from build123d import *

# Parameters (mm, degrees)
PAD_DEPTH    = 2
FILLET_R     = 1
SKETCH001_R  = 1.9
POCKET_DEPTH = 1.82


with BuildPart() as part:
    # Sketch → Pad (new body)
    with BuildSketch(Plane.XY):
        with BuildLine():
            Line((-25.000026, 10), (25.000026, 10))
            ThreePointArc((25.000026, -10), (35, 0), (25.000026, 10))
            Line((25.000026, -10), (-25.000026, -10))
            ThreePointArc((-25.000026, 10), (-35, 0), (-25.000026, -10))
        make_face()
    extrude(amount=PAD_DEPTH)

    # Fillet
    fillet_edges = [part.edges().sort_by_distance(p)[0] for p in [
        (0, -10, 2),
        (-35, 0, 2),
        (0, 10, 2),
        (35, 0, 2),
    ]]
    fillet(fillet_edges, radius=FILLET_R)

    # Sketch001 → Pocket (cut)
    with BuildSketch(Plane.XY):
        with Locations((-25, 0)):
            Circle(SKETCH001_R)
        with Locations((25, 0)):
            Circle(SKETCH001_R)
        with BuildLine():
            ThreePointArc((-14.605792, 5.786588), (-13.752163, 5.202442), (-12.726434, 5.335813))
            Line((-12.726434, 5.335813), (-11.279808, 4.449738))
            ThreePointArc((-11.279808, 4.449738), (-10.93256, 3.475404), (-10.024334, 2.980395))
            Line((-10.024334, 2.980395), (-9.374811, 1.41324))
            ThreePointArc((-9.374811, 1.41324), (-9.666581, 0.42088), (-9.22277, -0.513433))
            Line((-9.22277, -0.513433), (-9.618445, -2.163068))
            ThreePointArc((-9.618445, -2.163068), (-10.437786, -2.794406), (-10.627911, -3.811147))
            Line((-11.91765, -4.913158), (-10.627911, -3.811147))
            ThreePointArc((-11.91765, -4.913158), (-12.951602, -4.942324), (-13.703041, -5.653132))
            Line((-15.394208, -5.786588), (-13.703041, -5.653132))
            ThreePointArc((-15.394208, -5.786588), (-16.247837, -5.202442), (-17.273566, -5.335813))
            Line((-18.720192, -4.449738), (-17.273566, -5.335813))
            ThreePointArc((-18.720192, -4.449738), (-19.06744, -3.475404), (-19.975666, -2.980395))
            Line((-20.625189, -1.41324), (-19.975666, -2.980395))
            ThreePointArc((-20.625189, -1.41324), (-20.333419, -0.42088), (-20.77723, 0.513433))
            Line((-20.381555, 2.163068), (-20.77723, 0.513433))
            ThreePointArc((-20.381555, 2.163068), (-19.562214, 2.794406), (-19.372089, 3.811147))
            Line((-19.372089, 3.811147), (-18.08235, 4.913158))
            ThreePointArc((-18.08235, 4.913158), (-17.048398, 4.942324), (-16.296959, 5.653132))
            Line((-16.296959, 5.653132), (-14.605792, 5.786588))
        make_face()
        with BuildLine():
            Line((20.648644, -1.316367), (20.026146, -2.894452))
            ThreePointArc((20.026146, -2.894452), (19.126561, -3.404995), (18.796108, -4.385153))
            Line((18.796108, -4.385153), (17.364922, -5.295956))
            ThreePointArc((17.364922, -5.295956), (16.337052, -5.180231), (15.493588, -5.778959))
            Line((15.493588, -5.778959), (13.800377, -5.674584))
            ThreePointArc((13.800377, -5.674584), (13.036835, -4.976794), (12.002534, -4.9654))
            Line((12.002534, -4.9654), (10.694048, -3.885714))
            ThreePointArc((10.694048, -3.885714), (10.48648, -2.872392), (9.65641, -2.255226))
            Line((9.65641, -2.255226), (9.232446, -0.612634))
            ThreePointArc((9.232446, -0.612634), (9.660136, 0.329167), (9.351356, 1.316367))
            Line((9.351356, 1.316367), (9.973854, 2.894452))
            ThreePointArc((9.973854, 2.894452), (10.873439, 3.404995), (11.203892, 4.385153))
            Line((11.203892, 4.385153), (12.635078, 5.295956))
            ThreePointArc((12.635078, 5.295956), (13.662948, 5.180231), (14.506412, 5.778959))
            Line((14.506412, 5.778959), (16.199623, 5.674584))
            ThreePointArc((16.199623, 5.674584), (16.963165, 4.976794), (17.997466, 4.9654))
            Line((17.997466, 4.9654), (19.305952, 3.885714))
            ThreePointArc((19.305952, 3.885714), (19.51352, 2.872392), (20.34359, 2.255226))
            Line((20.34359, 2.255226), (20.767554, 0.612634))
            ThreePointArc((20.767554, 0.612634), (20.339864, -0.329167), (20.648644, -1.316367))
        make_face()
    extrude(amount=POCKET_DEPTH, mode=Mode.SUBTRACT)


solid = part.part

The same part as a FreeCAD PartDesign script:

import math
import FreeCAD as App
import Part
import Sketcher

V = App.Vector


def edges_at(feature, points):
    """Names of the edges that pass closest to the given points."""
    edges = feature.Shape.Edges
    near = lambda p: min(range(len(edges)), key=lambda i: edges[i].distToShape(Part.Vertex(*p))[0])
    return sorted({f"Edge{near(p) + 1}" for p in points})

doc = App.newDocument("Part")
body = doc.addObject("PartDesign::Body", "Body")

# Sketch on XY plane
sketch1 = body.newObject("Sketcher::SketchObject", "Sketch")
sketch1.AttachmentSupport = (doc.getObject("XY_Plane"), [""])
sketch1.MapMode = "FlatFace"
sketch1.addGeometry([
    Part.LineSegment(V(25.000026, 10, 0), V(-25.000026, 10, 0)),
    Part.ArcOfCircle(Part.Circle(V(-25, 0, 0), V(0, 0, 1), 10), math.radians(90.000149), math.radians(269.999851)),
    Part.LineSegment(V(-25.000026, -10, 0), V(25.000026, -10, 0)),
    Part.ArcOfCircle(Part.Circle(V(25, 0, 0), V(0, 0, 1), 10), math.radians(-89.999851), math.radians(89.999851)),
], False)
sketch1.addConstraint([
    Sketcher.Constraint("Coincident", 0, 2, 1, 1),
    Sketcher.Constraint("Coincident", 1, 2, 2, 1),
    Sketcher.Constraint("Coincident", 2, 2, 3, 1),
    Sketcher.Constraint("Coincident", 3, 2, 0, 1),
    Sketcher.Constraint("Horizontal", 0),
    Sketcher.Constraint("Horizontal", 2),
    Sketcher.Constraint("Symmetric", 1, 3, 3, 3, -1, 1),
    Sketcher.Constraint("Vertical", 0, 2, 1, 2),
    Sketcher.Constraint("Vertical", 2, 2, 3, 2),
    Sketcher.Constraint("Radius", 1, 10.0),
    Sketcher.Constraint("DistanceX", 1, 3, -1, 1, 25.0),
    Sketcher.Constraint("DistanceX", 0, 2, 0, 1, 50.000052),
    Sketcher.Constraint("DistanceX", 0, 2, -1, 1, 25.000026),
])
pad1 = body.newObject("PartDesign::Pad", "Pad")
pad1.Profile = sketch1
pad1.Length = 2
doc.recompute()

fillet = body.newObject("PartDesign::Fillet", "Fillet")
fillet.Base = (pad1, edges_at(pad1, [
    (0, -10, 2),
    (-35, 0, 2),
    (0, 10, 2),
    (35, 0, 2),
]))
fillet.Radius = 1

# Sketch on XY plane
sketch2 = body.newObject("Sketcher::SketchObject", "Sketch001")
sketch2.AttachmentSupport = (doc.getObject("XY_Plane"), [""])
sketch2.MapMode = "FlatFace"
sketch2.addGeometry([
    Part.Circle(V(-25, 0, 0), V(0, 0, 1), 1.9),  # 0
    Part.Circle(V(25, 0, 0), V(0, 0, 1), 1.9),  # 1
    Part.ArcOfCircle(Part.Circle(V(-13.413965, 6.61245, 0), V(0, 0, 1), 1.45), math.radians(-145.280464), math.radians(-61.695383)),  # 2
    Part.LineSegment(V(-14.605792, 5.786588, 0), V(-16.296959, 5.653132, 0)),  # 3
    Part.ArcOfCircle(Part.Circle(V(-17.603571, 6.281831, 0), V(0, 0, 1), 1.449999), math.radians(-109.280489), math.radians(-25.695363)),  # 4
    Part.LineSegment(V(-18.08235, 4.913158, 0), V(-19.372089, 3.811147, 0)),  # 5
    Part.ArcOfCircle(Part.Circle(V(-20.798703, 3.551769, 0), V(0, 0, 1), 1.450001), math.radians(-73.280419), math.radians(10.30459)),  # 6
    Part.LineSegment(V(-20.381555, 2.163068, 0), V(-20.77723, 0.513433, 0)),  # 7
    Part.ArcOfCircle(Part.Circle(V(-21.778925, -0.53495, 0), V(0, 0, 1), 1.45), math.radians(-37.280455), math.radians(46.304604)),  # 8
    Part.LineSegment(V(-20.625189, -1.41324, 0), V(-19.975666, -2.980395, 0)),  # 9
    Part.ArcOfCircle(Part.Circle(V(-20.16983, -4.417336, 0), V(0, 0, 1), 1.45), math.radians(-1.280439), math.radians(82.304629)),  # 10
    Part.LineSegment(V(-18.720192, -4.449738, 0), V(-17.273566, -5.335813, 0)),  # 11
    Part.ArcOfCircle(Part.Circle(V(-16.586035, -6.61245, 0), V(0, 0, 1), 1.45), math.radians(34.719536), math.radians(118.304617)),  # 12
    Part.LineSegment(V(-15.394208, -5.786588, 0), V(-13.703041, -5.653132, 0)),  # 13
    Part.ArcOfCircle(Part.Circle(V(-12.396429, -6.281831, 0), V(0, 0, 1), 1.449999), math.radians(70.719511), math.radians(154.304637)),  # 14
    Part.LineSegment(V(-11.91765, -4.913158, 0), V(-10.627911, -3.811147, 0)),  # 15
    Part.ArcOfCircle(Part.Circle(V(-9.201297, -3.551769, 0), V(0, 0, 1), 1.450001), math.radians(106.719581), math.radians(190.30459)),  # 16
    Part.LineSegment(V(-9.618445, -2.163068, 0), V(-9.22277, -0.513433, 0)),  # 17
    Part.ArcOfCircle(Part.Circle(V(-8.221075, 0.53495, 0), V(0, 0, 1), 1.45), math.radians(142.719545), math.radians(226.304604)),  # 18
    Part.LineSegment(V(-9.374811, 1.41324, 0), V(-10.024334, 2.980395, 0)),  # 19
    Part.ArcOfCircle(Part.Circle(V(-9.83017, 4.417336, 0), V(0, 0, 1), 1.45), math.radians(178.719561), math.radians(262.304629)),  # 20
    Part.LineSegment(V(-11.279808, 4.449738, 0), V(-12.726434, 5.335813, 0)),  # 21
    Part.LineSegment(V(20.026146, -2.894452, 0), V(20.648644, -1.316367, 0)),  # 22
    Part.ArcOfCircle(Part.Circle(V(21.787117, -0.418381, 0), V(0, 0, 1), 1.45), math.radians(134.680019), math.radians(218.265106)),  # 23
    Part.LineSegment(V(20.767554, 0.612634, 0), V(20.34359, 2.255226, 0)),  # 24
    Part.ArcOfCircle(Part.Circle(V(20.736811, 3.65089, 0), V(0, 0, 1), 1.45), math.radians(170.680042), math.radians(254.26508)),  # 25
    Part.LineSegment(V(19.305952, 3.885714, 0), V(17.997466, 4.9654, 0)),  # 26
    Part.ArcOfCircle(Part.Circle(V(17.495237, 6.325643, 0), V(0, 0, 1), 1.449998), math.radians(-153.320026), math.radians(-69.734854)),  # 27
    Part.LineSegment(V(16.199623, 5.674584, 0), V(14.506412, 5.778959, 0)),  # 28
    Part.ArcOfCircle(Part.Circle(V(13.300569, 6.584219, 0), V(0, 0, 1), 1.45), math.radians(-117.319999), math.radians(-33.734929)),  # 29
    Part.LineSegment(V(12.635078, 5.295956, 0), V(11.203892, 4.385153, 0)),  # 30
    Part.ArcOfCircle(Part.Circle(V(9.755026, 4.327844, 0), V(0, 0, 1), 1.449999), math.radians(-81.31999), math.radians(2.265137)),  # 31
    Part.LineSegment(V(9.973854, 2.894452, 0), V(9.351356, 1.316367, 0)),  # 32
    Part.ArcOfCircle(Part.Circle(V(8.212883, 0.418381, 0), V(0, 0, 1), 1.45), math.radians(-45.319981), math.radians(38.265106)),  # 33
    Part.LineSegment(V(9.232446, -0.612634, 0), V(9.65641, -2.255226, 0)),  # 34
    Part.ArcOfCircle(Part.Circle(V(9.263189, -3.65089, 0), V(0, 0, 1), 1.45), math.radians(-9.319958), math.radians(74.26508)),  # 35
    Part.LineSegment(V(10.694048, -3.885714, 0), V(12.002534, -4.9654, 0)),  # 36
    Part.ArcOfCircle(Part.Circle(V(12.504763, -6.325643, 0), V(0, 0, 1), 1.449998), math.radians(26.679974), math.radians(110.265146)),  # 37
    Part.LineSegment(V(13.800377, -5.674584, 0), V(15.493588, -5.778959, 0)),  # 38
    Part.ArcOfCircle(Part.Circle(V(16.699431, -6.584219, 0), V(0, 0, 1), 1.45), math.radians(62.680001), math.radians(146.265071)),  # 39
    Part.LineSegment(V(17.364922, -5.295956, 0), V(18.796108, -4.385153, 0)),  # 40
    Part.ArcOfCircle(Part.Circle(V(20.244974, -4.327844, 0), V(0, 0, 1), 1.449999), math.radians(98.68001), math.radians(182.265137)),  # 41
], False)
sketch2.addConstraint([
    Sketcher.Constraint("Coincident", 2, 1, 3, 1),
    Sketcher.Constraint("Coincident", 3, 2, 4, 2),
    Sketcher.Constraint("Coincident", 4, 1, 5, 1),
    Sketcher.Constraint("Coincident", 5, 2, 6, 2),
    Sketcher.Constraint("Coincident", 6, 1, 7, 1),
    Sketcher.Constraint("Coincident", 7, 2, 8, 2),
    Sketcher.Constraint("Coincident", 8, 1, 9, 1),
    Sketcher.Constraint("Coincident", 9, 2, 10, 2),
    Sketcher.Constraint("Coincident", 10, 1, 11, 1),
    Sketcher.Constraint("Coincident", 11, 2, 12, 2),
    Sketcher.Constraint("Coincident", 12, 1, 13, 1),
    Sketcher.Constraint("Coincident", 13, 2, 14, 2),
    Sketcher.Constraint("Coincident", 14, 1, 15, 1),
    Sketcher.Constraint("Coincident", 15, 2, 16, 2),
    Sketcher.Constraint("Coincident", 16, 1, 17, 1),
    Sketcher.Constraint("Coincident", 17, 2, 18, 2),
    Sketcher.Constraint("Coincident", 18, 1, 19, 1),
    Sketcher.Constraint("Coincident", 19, 2, 20, 2),
    Sketcher.Constraint("Coincident", 20, 1, 21, 1),
    Sketcher.Constraint("Coincident", 21, 2, 2, 2),
    Sketcher.Constraint("Coincident", 22, 2, 23, 2),
    Sketcher.Constraint("Coincident", 23, 1, 24, 1),
    Sketcher.Constraint("Coincident", 24, 2, 25, 2),
    Sketcher.Constraint("Coincident", 25, 1, 26, 1),
    Sketcher.Constraint("Coincident", 26, 2, 27, 2),
    Sketcher.Constraint("Coincident", 27, 1, 28, 1),
    Sketcher.Constraint("Coincident", 28, 2, 29, 2),
    Sketcher.Constraint("Coincident", 29, 1, 30, 1),
    Sketcher.Constraint("Coincident", 30, 2, 31, 2),
    Sketcher.Constraint("Coincident", 31, 1, 32, 1),
    Sketcher.Constraint("Coincident", 32, 2, 33, 2),
    Sketcher.Constraint("Coincident", 33, 1, 34, 1),
    Sketcher.Constraint("Coincident", 34, 2, 35, 2),
    Sketcher.Constraint("Coincident", 35, 1, 36, 1),
    Sketcher.Constraint("Coincident", 36, 2, 37, 2),
    Sketcher.Constraint("Coincident", 37, 1, 38, 1),
    Sketcher.Constraint("Coincident", 38, 2, 39, 2),
    Sketcher.Constraint("Coincident", 39, 1, 40, 1),
    Sketcher.Constraint("Coincident", 40, 2, 41, 2),
    Sketcher.Constraint("Coincident", 41, 1, 22, 1),
    Sketcher.Constraint("PointOnObject", 0, 3, -1),
    Sketcher.Constraint("PointOnObject", 1, 3, -1),
    Sketcher.Constraint("Diameter", 0, 3.8),
    Sketcher.Constraint("Diameter", 1, 3.8),
    Sketcher.Constraint("Radius", 2, 1.45),
    Sketcher.Constraint("Radius", 4, 1.449999),
    Sketcher.Constraint("Radius", 6, 1.450001),
    Sketcher.Constraint("Radius", 8, 1.45),
    Sketcher.Constraint("Radius", 10, 1.45),
    Sketcher.Constraint("Radius", 12, 1.45),
    Sketcher.Constraint("Radius", 14, 1.449999),
    Sketcher.Constraint("Radius", 16, 1.450001),
    Sketcher.Constraint("Radius", 18, 1.45),
    Sketcher.Constraint("Radius", 20, 1.45),
    Sketcher.Constraint("Radius", 23, 1.45),
    Sketcher.Constraint("Radius", 25, 1.45),
    Sketcher.Constraint("Radius", 29, 1.45),
    Sketcher.Constraint("Radius", 31, 1.449999),
    Sketcher.Constraint("Radius", 33, 1.45),
    Sketcher.Constraint("Radius", 35, 1.45),
    Sketcher.Constraint("Radius", 39, 1.45),
    Sketcher.Constraint("Radius", 41, 1.449999),
    Sketcher.Constraint("DistanceX", 0, 3, -1, 1, 25.0),
    Sketcher.Constraint("DistanceX", -1, 1, 1, 3, 25.0),
    Sketcher.Constraint("Radius", 27, 1.449998),
    Sketcher.Constraint("Radius", 37, 1.449998),
    Sketcher.Constraint("DistanceY", -1, 1, 26, 2, 4.9654),
    Sketcher.Constraint("DistanceY", 36, 2, -1, 1, 4.9654),
    Sketcher.Constraint("DistanceY", -1, 1, 2, 3, 6.61245),
    Sketcher.Constraint("DistanceX", 4, 3, -1, 1, 17.603571),
    Sketcher.Constraint("DistanceY", -1, 1, 4, 3, 6.281831),
    Sketcher.Constraint("DistanceY", -1, 1, 6, 3, 3.551769),
    Sketcher.Constraint("DistanceY", 8, 3, -1, 1, 0.53495),
    Sketcher.Constraint("DistanceX", 10, 3, -1, 1, 20.16983),
    Sketcher.Constraint("DistanceY", 12, 3, -1, 1, 6.61245),
    Sketcher.Constraint("DistanceX", 14, 3, -1, 1, 12.396429),
    Sketcher.Constraint("DistanceY", 14, 3, -1, 1, 6.281831),
    Sketcher.Constraint("DistanceY", 16, 3, -1, 1, 3.551769),
    Sketcher.Constraint("DistanceY", -1, 1, 18, 3, 0.53495),
    Sketcher.Constraint("DistanceX", 20, 3, -1, 1, 9.83017),
    Sketcher.Constraint("DistanceY", 23, 3, -1, 1, 0.418381),
    Sketcher.Constraint("DistanceX", -1, 1, 25, 3, 20.736811),
    Sketcher.Constraint("DistanceY", -1, 1, 25, 3, 3.65089),
    Sketcher.Constraint("DistanceX", -1, 1, 29, 3, 13.300569),
    Sketcher.Constraint("DistanceY", -1, 1, 29, 3, 6.584219),
    Sketcher.Constraint("DistanceY", -1, 1, 33, 3, 0.418381),
    Sketcher.Constraint("DistanceX", -1, 1, 35, 3, 9.263189),
    Sketcher.Constraint("DistanceY", 35, 3, -1, 1, 3.65089),
    Sketcher.Constraint("DistanceX", -1, 1, 39, 3, 16.699431),
    Sketcher.Constraint("DistanceY", 39, 3, -1, 1, 6.584219),
    Sketcher.Constraint("DistanceX", 3, 2, -1, 1, 16.296959),
    Sketcher.Constraint("DistanceX", 4, 1, -1, 1, 18.08235),
    Sketcher.Constraint("DistanceX", 5, 2, -1, 1, 19.372089),
    Sketcher.Constraint("DistanceY", -1, 1, 6, 1, 2.163068),
    Sketcher.Constraint("DistanceX", 7, 2, -1, 1, 20.77723),
    Sketcher.Constraint("DistanceX", 8, 1, -1, 1, 20.625189),
    Sketcher.Constraint("DistanceY", 8, 1, -1, 1, 1.41324),
    Sketcher.Constraint("DistanceX", 10, 1, -1, 1, 18.720192),
    Sketcher.Constraint("DistanceY", 10, 1, -1, 1, 4.449738),
    Sketcher.Constraint("DistanceX", 13, 2, -1, 1, 13.703041),
    Sketcher.Constraint("DistanceX", 14, 1, -1, 1, 11.91765),
    Sketcher.Constraint("DistanceX", 15, 2, -1, 1, 10.627911),
    Sketcher.Constraint("DistanceY", 16, 1, -1, 1, 2.163068),
    Sketcher.Constraint("DistanceX", 17, 2, -1, 1, 9.22277),
    Sketcher.Constraint("DistanceX", 18, 1, -1, 1, 9.374811),
    Sketcher.Constraint("DistanceY", -1, 1, 18, 1, 1.41324),
    Sketcher.Constraint("DistanceX", 20, 1, -1, 1, 11.279808),
    Sketcher.Constraint("DistanceY", -1, 1, 20, 1, 4.449738),
    Sketcher.Constraint("DistanceX", -1, 1, 24, 2, 20.34359),
    Sketcher.Constraint("DistanceX", -1, 1, 28, 2, 14.506412),
    Sketcher.Constraint("DistanceX", -1, 1, 29, 1, 12.635078),
    Sketcher.Constraint("DistanceY", -1, 1, 31, 1, 2.894452),
    Sketcher.Constraint("DistanceX", -1, 1, 34, 2, 9.65641),
    Sketcher.Constraint("DistanceX", -1, 1, 38, 2, 15.493588),
    Sketcher.Constraint("DistanceX", -1, 1, 39, 1, 17.364922),
    Sketcher.Constraint("DistanceX", -1, 1, 40, 2, 18.796108),
    Sketcher.Constraint("DistanceY", 41, 1, -1, 1, 2.894452),
    Sketcher.Constraint("Distance", 3, 1.696425),
    Sketcher.Constraint("Distance", 5, 1.696424),
    Sketcher.Constraint("Distance", 9, 1.696424),
    Sketcher.Constraint("Distance", 11, 1.696424),
    Sketcher.Constraint("Distance", 13, 1.696425),
    Sketcher.Constraint("Distance", 15, 1.696424),
    Sketcher.Constraint("Distance", 19, 1.696424),
    Sketcher.Constraint("Distance", 21, 1.696424),
    Sketcher.Constraint("Distance", 22, 1.696424),
    Sketcher.Constraint("Distance", 24, 1.696424),
    Sketcher.Constraint("Distance", 26, 1.696425),
    Sketcher.Constraint("Distance", 28, 1.696425),
    Sketcher.Constraint("Distance", 30, 1.696424),
    Sketcher.Constraint("Distance", 32, 1.696424),
    Sketcher.Constraint("Distance", 34, 1.696424),
    Sketcher.Constraint("Distance", 36, 1.696425),
    Sketcher.Constraint("Distance", 38, 1.696425),
    Sketcher.Constraint("Distance", 40, 1.696424),
    Sketcher.Constraint("DistanceX", 2, 3, -1, 1, 13.413965),
    Sketcher.Constraint("DistanceX", 12, 3, -1, 1, 16.586035),
    Sketcher.Constraint("DistanceX", -1, 1, 23, 3, 21.787117),
    Sketcher.Constraint("DistanceX", -1, 1, 27, 3, 17.495237),
    Sketcher.Constraint("DistanceY", -1, 1, 27, 3, 6.325643),
    Sketcher.Constraint("DistanceX", -1, 1, 31, 3, 9.755026),
    Sketcher.Constraint("DistanceY", -1, 1, 31, 3, 4.327844),
    Sketcher.Constraint("DistanceX", -1, 1, 33, 3, 8.212883),
    Sketcher.Constraint("DistanceX", -1, 1, 37, 3, 12.504763),
    Sketcher.Constraint("DistanceY", 37, 3, -1, 1, 6.325643),
    Sketcher.Constraint("DistanceX", -1, 1, 41, 3, 20.244974),
])
pocket1 = body.newObject("PartDesign::Pocket", "Pocket")
pocket1.Profile = sketch2
pocket1.Length = 1.82
pocket1.Reversed = True

doc.recompute()
